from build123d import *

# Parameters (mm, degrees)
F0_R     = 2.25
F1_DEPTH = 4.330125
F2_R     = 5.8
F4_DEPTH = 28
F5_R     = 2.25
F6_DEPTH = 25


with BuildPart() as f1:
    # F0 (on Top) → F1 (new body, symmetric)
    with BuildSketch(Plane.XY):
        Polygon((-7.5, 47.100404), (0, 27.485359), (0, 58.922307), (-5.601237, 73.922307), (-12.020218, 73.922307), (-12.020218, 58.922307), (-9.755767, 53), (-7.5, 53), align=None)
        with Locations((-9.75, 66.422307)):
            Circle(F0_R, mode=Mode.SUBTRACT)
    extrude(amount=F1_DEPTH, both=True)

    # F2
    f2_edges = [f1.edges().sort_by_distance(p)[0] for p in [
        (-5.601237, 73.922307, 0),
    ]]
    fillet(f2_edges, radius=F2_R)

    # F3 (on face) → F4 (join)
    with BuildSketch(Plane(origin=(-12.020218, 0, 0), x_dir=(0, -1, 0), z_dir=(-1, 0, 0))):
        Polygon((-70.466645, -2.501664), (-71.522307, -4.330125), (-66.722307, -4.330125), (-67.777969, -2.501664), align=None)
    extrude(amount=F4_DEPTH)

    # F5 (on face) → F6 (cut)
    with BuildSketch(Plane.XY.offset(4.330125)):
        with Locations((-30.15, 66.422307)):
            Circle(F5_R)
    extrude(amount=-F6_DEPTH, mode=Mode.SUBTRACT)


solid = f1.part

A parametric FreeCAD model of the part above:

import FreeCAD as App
import Part
import Sketcher

V = App.Vector
Q = App.Units.Quantity


def edges_at(feature, points):
    """Names of the edges that pass closest to the given points."""
    edges = feature.Shape.Edges
    near = lambda p: min(range(len(edges)), key=lambda i: edges[i].distToShape(Part.Vertex(*p))[0])
    return sorted({f"Edge{near(p) + 1}" for p in points})


def add_polygon(sketch, points):
    """Adds a closed chain of lines whose ends are joined by coincident constraints."""
    first, n = sketch.GeometryCount, len(points)
    for a, b in zip(points, points[1:] + points[:1]):
        sketch.addGeometry(Part.LineSegment(App.Vector(*a, 0), App.Vector(*b, 0)), False)
    for i in range(n):
        sketch.addConstraint(Sketcher.Constraint("Coincident", first + i, 2, first + (i + 1) % n, 1))

doc = App.newDocument("Part")
body = doc.addObject("PartDesign::Body", "Body")

sketch1 = body.newObject("Sketcher::SketchObject", "Sketch")
sketch1.AttachmentSupport = (doc.getObject("XY_Plane"), [""])
sketch1.MapMode = "FlatFace"
add_polygon(sketch1, [(-7.5, 47.1), (0, 27.5), (0, 58.9), (-5.6, 73.9), (-12, 73.9), (-12, 58.9), (-9.8, 53), (-7.5, 53)])
sketch1.addGeometry(Part.Circle(V(-9.8, 66.4, 0), V(0, 0, 1), 2.2), False)
sketch1.addConstraint(Sketcher.Constraint("Vertical", 1))
sketch1.addConstraint(Sketcher.Constraint("Horizontal", 3))
sketch1.addConstraint(Sketcher.Constraint("Vertical", 4))
sketch1.addConstraint(Sketcher.Constraint("Horizontal", 6))
sketch1.addConstraint(Sketcher.Constraint("Vertical", 7))
sketch1.addConstraint(Sketcher.Constraint("PointOnObject", 0, 2, -2))
sketch1.addConstraint(Sketcher.Constraint("Parallel", 0, 5))
sketch1.addConstraint(Sketcher.Constraint("Horizontal", 1, 2, 4, 2))
sketch1.addConstraint(Sketcher.Constraint("Diameter", 8, Q("4.5 mm")))
sketch1.addConstraint(Sketcher.Constraint("DistanceY", 4, 2, 4, 1, Q("15 mm")))
sketch1.addConstraint(Sketcher.Constraint("Distance", 0, Q("21 mm")))
sketch1.addConstraint(Sketcher.Constraint("DistanceY", -1, 1, 5, 2, Q("53 mm")))
sketch1.addConstraint(Sketcher.Constraint("DistanceX", 6, 2, -1, 1, Q("7.5 mm")))
sketch1.addConstraint(Sketcher.Constraint("DistanceY", 1, 2, 8, 3, Q("7.5 mm")))
sketch1.addConstraint(Sketcher.Constraint("DistanceX", 8, 3, -1, 1, Q("9.75 mm")))
sketch1.addConstraint(Sketcher.Constraint("DistanceX", 3, 2, 3, 1, Q("6.418981 mm")))
sketch1.addConstraint(Sketcher.Constraint("DistanceY", 1, 1, 1, 2, Q("31.436948 mm")))
sketch1.addConstraint(Sketcher.Constraint("Distance", 2, Q("16.011679 mm")))
sketch1.addConstraint(Sketcher.Constraint("DistanceX", 6, 1, 6, 2, Q("2.255767 mm")))
pad1 = body.newObject("PartDesign::Pad", "Pad")
pad1.Profile = sketch1
pad1.Length = 8.66025
pad1.Midplane = True
doc.recompute()

fillet = body.newObject("PartDesign::Fillet", "Fillet")
fillet.Base = (pad1, edges_at(pad1, [(-5.601, 73.922, 0)]))
fillet.Radius = 5.8

sketch2 = body.newObject("Sketcher::SketchObject", "Sketch001")
sketch2.AttachmentSupport = (doc.getObject("YZ_Plane"), [""])
sketch2.MapMode = "FlatFace"
sketch2.AttachmentOffset = App.Placement(V(0, 0, -12.020218), App.Rotation())
add_polygon(sketch2, [(70.5, -2.5), (71.5, -4.3), (66.7, -4.3), (67.8, -2.5)])
sketch2.addConstraint(Sketcher.Constraint("Horizontal", 1))
sketch2.addConstraint(Sketcher.Constraint("Horizontal", 3))
sketch2.addConstraint(Sketcher.Constraint("Equal", 0, 2))
sketch2.addConstraint(Sketcher.Constraint("Angle", 0, Q("-60.000011 deg")))
sketch2.addConstraint(Sketcher.Constraint("DistanceX", 1, 2, 1, 1, Q("4.8 mm")))
sketch2.addConstraint(Sketcher.Constraint("DistanceX", 3, 1, 3, 2, Q("2.688676 mm")))
sketch2.addConstraint(Sketcher.Constraint("DistanceX", -1, 1, 2, 2, Q("67.777969 mm")))
sketch2.addConstraint(Sketcher.Constraint("DistanceY", 0, 2, -1, 1, Q("4.330125 mm")))
pad2 = body.newObject("PartDesign::Pad", "Pad001")
pad2.Profile = sketch2
pad2.Length = 28
pad2.Reversed = True

sketch3 = body.newObject("Sketcher::SketchObject", "Sketch002")
sketch3.AttachmentSupport = (doc.getObject("XY_Plane"), [""])
sketch3.MapMode = "FlatFace"
sketch3.AttachmentOffset = App.Placement(V(0, 0, 4.330125), App.Rotation())
sketch3.addGeometry(Part.Circle(V(-30.1, 66.4, 0), V(0, 0, 1), 2.2), False)
sketch3.addConstraint(Sketcher.Constraint("Diameter", 0, Q("4.5 mm")))
sketch3.addConstraint(Sketcher.Constraint("DistanceX", 0, 3, -1, 1, Q("30.15 mm")))
sketch3.addConstraint(Sketcher.Constraint("DistanceY", -1, 1, 0, 3, Q("66.422307 mm")))
pocket1 = body.newObject("PartDesign::Pocket", "Pocket")
pocket1.Profile = sketch3
pocket1.Length = 25

doc.recompute()
